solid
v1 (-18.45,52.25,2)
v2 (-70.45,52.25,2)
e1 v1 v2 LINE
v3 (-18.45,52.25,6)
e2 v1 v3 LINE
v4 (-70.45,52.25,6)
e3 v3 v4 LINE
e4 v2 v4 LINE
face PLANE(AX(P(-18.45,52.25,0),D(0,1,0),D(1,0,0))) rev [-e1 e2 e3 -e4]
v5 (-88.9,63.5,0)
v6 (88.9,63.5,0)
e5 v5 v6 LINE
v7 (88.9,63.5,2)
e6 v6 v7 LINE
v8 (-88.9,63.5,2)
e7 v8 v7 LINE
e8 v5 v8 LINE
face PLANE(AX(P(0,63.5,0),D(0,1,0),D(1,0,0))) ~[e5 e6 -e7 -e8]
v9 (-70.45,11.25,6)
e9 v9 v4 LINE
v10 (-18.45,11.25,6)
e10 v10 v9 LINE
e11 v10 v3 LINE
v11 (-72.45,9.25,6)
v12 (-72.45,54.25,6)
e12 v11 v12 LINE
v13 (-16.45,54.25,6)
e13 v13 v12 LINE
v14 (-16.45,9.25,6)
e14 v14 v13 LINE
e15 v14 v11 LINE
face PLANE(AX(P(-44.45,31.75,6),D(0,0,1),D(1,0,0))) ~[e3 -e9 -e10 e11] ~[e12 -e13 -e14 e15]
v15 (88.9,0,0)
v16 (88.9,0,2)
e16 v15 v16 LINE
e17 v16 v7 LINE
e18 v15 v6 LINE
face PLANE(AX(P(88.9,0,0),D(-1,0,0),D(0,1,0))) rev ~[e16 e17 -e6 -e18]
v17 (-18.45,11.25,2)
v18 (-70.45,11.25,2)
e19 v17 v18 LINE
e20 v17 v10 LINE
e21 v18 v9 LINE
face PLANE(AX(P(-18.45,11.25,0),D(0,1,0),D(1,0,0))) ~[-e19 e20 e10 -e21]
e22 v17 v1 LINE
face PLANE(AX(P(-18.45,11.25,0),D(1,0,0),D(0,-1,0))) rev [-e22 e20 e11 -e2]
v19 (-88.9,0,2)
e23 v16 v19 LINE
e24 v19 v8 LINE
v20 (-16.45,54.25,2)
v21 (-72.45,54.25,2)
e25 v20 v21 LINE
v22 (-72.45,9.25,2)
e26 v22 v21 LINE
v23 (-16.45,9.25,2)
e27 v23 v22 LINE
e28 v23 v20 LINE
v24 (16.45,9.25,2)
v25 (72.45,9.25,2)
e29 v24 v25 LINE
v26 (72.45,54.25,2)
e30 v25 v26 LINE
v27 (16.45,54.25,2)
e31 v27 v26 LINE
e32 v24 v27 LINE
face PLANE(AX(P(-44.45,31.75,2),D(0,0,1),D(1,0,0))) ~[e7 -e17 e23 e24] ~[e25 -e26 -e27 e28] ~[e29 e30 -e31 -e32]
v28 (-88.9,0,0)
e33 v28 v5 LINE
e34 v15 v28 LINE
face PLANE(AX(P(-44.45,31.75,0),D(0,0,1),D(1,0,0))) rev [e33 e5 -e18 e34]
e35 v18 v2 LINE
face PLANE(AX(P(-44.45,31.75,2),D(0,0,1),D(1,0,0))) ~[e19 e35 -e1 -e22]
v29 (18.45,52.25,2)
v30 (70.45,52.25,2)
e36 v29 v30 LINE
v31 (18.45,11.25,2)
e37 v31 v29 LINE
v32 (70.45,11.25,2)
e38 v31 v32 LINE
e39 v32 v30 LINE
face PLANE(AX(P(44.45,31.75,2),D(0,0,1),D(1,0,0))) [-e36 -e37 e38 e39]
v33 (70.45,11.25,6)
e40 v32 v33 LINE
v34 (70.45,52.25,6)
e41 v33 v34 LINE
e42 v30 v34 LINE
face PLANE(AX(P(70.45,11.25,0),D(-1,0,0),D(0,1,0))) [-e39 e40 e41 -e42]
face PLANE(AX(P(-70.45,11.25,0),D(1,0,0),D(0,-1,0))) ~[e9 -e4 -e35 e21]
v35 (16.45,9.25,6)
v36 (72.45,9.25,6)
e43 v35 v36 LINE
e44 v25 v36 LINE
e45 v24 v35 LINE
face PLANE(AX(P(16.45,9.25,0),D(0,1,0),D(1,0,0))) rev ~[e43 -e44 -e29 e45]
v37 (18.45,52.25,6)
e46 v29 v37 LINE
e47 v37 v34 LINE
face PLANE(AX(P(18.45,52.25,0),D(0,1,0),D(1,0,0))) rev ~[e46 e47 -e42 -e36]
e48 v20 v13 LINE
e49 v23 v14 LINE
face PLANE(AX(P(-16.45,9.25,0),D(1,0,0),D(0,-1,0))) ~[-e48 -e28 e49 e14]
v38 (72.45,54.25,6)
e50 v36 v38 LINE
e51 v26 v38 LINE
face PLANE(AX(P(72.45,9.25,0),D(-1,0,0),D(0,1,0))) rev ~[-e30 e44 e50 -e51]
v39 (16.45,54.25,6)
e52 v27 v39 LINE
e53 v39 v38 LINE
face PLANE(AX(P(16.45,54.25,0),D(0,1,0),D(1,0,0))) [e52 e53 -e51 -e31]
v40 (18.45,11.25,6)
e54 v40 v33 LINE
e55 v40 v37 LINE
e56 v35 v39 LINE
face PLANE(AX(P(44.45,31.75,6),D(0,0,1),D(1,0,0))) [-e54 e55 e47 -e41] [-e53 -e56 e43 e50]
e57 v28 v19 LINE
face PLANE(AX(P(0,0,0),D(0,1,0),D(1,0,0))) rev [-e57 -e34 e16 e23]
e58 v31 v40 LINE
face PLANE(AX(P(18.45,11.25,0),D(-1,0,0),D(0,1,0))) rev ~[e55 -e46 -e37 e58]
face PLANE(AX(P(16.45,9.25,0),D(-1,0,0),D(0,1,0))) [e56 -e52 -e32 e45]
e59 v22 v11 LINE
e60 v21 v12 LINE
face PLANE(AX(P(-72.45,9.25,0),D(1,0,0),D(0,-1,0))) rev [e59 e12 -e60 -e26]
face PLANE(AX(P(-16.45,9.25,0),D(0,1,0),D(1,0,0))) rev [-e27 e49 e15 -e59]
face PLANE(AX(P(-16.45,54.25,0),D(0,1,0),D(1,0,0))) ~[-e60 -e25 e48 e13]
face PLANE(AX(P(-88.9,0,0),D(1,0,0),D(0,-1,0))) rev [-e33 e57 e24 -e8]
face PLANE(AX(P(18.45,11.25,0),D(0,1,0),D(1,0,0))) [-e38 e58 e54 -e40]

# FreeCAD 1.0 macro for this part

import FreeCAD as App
import Part
import Sketcher
Q = App.Units.Quantity


def add_polygon(sketch, points):
    """Adds a closed chain of lines whose ends are joined by coincident constraints."""
    first, n = sketch.GeometryCount, len(points)
    for a, b in zip(points, points[1:] + points[:1]):
        sketch.addGeometry(Part.LineSegment(App.Vector(*a, 0), App.Vector(*b, 0)), False)
    for i in range(n):
        sketch.addConstraint(Sketcher.Constraint("Coincident", first + i, 2, first + (i + 1) % n, 1))

doc = App.newDocument("Part")
body = doc.addObject("PartDesign::Body", "Body")

sketch1 = body.newObject("Sketcher::SketchObject", "Sketch")
sketch1.AttachmentSupport = (doc.getObject("XY_Plane"), [""])
sketch1.MapMode = "FlatFace"
add_polygon(sketch1, [(16.45, 54.25), (16.45, 9.25), (72.45, 9.25), (72.45, 54.25)])
add_polygon(sketch1, [(70.45, 11.25), (18.45, 11.25), (18.45, 52.25), (70.45, 52.25)])
sketch1.addConstraint(Sketcher.Constraint("Vertical", 0))
sketch1.addConstraint(Sketcher.Constraint("Horizontal", 1))
sketch1.addConstraint(Sketcher.Constraint("Vertical", 2))
sketch1.addConstraint(Sketcher.Constraint("Horizontal", 3))
sketch1.addConstraint(Sketcher.Constraint("Horizontal", 4))
sketch1.addConstraint(Sketcher.Constraint("Vertical", 5))
sketch1.addConstraint(Sketcher.Constraint("Horizontal", 6))
sketch1.addConstraint(Sketcher.Constraint("Vertical", 7))
sketch1.addConstraint(Sketcher.Constraint("DistanceX", 1, 1, 1, 2, Q("56 mm")))
sketch1.addConstraint(Sketcher.Constraint("DistanceX", 4, 2, 4, 1, Q("52 mm")))
sketch1.addConstraint(Sketcher.Constraint("DistanceY", 0, 2, 0, 1, Q("45 mm")))
sketch1.addConstraint(Sketcher.Constraint("DistanceY", 5, 1, 5, 2, Q("41 mm")))
sketch1.addConstraint(Sketcher.Constraint("DistanceX", 0, 2, 4, 2, Q("2 mm")))
sketch1.addConstraint(Sketcher.Constraint("DistanceY", 0, 2, 4, 2, Q("2 mm")))
sketch1.addConstraint(Sketcher.Constraint("DistanceX", -1, 1, 0, 2, Q("16.45 mm")))
sketch1.addConstraint(Sketcher.Constraint("DistanceY", -1, 1, 0, 2, Q("9.25 mm")))
pad1 = body.newObject("PartDesign::Pad", "Pad")
pad1.Profile = sketch1
pad1.Length = 6

sketch2 = body.newObject("Sketcher::SketchObject", "Sketch001")
sketch2.AttachmentSupport = (doc.getObject("XY_Plane"), [""])
sketch2.MapMode = "FlatFace"
add_polygon(sketch2, [(0, 63.5), (0, 0), (88.9, 0), (88.9, 63.5)])
add_polygon(sketch2, [(72.45, 9.25), (16.45, 9.25), (16.45, 54.25), (72.45, 54.25)])
sketch2.addConstraint(Sketcher.Constraint("Vertical", 0))
sketch2.addConstraint(Sketcher.Constraint("Horizontal", 1))
sketch2.addConstraint(Sketcher.Constraint("Vertical", 2))
sketch2.addConstraint(Sketcher.Constraint("Horizontal", 3))
sketch2.addConstraint(Sketcher.Constraint("Horizontal", 4))
sketch2.addConstraint(Sketcher.Constraint("Vertical", 5))
sketch2.addConstraint(Sketcher.Constraint("Horizontal", 6))
sketch2.addConstraint(Sketcher.Constraint("Vertical", 7))
sketch2.addConstraint(Sketcher.Constraint("Coincident", 0, 2, -1, 1))
sketch2.addConstraint(Sketcher.Constraint("DistanceX", 4, 2, 4, 1, Q("56 mm")))
sketch2.addConstraint(Sketcher.Constraint("DistanceY", 5, 1, 5, 2, Q("45 mm")))
sketch2.addConstraint(Sketcher.Constraint("DistanceX", 1, 1, 1, 2, Q("88.9 mm")))
sketch2.addConstraint(Sketcher.Constraint("DistanceY", 0, 2, 0, 1, Q("63.5 mm")))
sketch2.addConstraint(Sketcher.Constraint("DistanceX", -1, 1, 4, 2, Q("16.45 mm")))
sketch2.addConstraint(Sketcher.Constraint("DistanceY", -1, 1, 4, 2, Q("9.25 mm")))
pad2 = body.newObject("PartDesign::Pad", "Pad001")
pad2.Profile = sketch2
pad2.Length = 2

sketch3 = body.newObject("Sketcher::SketchObject", "Sketch002")
sketch3.AttachmentSupport = (doc.getObject("XY_Plane"), [""])
sketch3.MapMode = "FlatFace"
add_polygon(sketch3, [(18.45, 52.25), (18.45, 11.25), (70.45, 11.25), (70.45, 52.25)])
sketch3.addConstraint(Sketcher.Constraint("Vertical", 0))
sketch3.addConstraint(Sketcher.Constraint("Horizontal", 1))
sketch3.addConstraint(Sketcher.Constraint("Vertical", 2))
sketch3.addConstraint(Sketcher.Constraint("Horizontal", 3))
sketch3.addConstraint(Sketcher.Constraint("DistanceX", 1, 1, 1, 2, Q("52 mm")))
sketch3.addConstraint(Sketcher.Constraint("DistanceY", 0, 2, 0, 1, Q("41 mm")))
sketch3.addConstraint(Sketcher.Constraint("DistanceX", -1, 1, 0, 2, Q("18.45 mm")))
sketch3.addConstraint(Sketcher.Constraint("DistanceY", -1, 1, 0, 2, Q("11.25 mm")))
pad3 = body.newObject("PartDesign::Pad", "Pad002")
pad3.Profile = sketch3
pad3.Length = 2
body2 = doc.addObject("PartDesign::Body", "Body001")
doc.recompute()

body2.BaseFeature = body
doc.recompute()

mirroring = doc.addObject("Part::Mirroring", "Mirroring")
mirroring.Source = body
mirroring.Base = App.Vector(0, 0, 0)
mirroring.Normal = App.Vector(1, 0, 0)
body3 = doc.addObject("PartDesign::Body", "Body002")
body3.BaseFeature = mirroring
boolean = body2.newObject("PartDesign::Boolean", "Boolean")
boolean.Type = "Fuse"
boolean.addObjects([body3])
doc.recompute()
mirroring.Visibility = False

doc.recompute()
